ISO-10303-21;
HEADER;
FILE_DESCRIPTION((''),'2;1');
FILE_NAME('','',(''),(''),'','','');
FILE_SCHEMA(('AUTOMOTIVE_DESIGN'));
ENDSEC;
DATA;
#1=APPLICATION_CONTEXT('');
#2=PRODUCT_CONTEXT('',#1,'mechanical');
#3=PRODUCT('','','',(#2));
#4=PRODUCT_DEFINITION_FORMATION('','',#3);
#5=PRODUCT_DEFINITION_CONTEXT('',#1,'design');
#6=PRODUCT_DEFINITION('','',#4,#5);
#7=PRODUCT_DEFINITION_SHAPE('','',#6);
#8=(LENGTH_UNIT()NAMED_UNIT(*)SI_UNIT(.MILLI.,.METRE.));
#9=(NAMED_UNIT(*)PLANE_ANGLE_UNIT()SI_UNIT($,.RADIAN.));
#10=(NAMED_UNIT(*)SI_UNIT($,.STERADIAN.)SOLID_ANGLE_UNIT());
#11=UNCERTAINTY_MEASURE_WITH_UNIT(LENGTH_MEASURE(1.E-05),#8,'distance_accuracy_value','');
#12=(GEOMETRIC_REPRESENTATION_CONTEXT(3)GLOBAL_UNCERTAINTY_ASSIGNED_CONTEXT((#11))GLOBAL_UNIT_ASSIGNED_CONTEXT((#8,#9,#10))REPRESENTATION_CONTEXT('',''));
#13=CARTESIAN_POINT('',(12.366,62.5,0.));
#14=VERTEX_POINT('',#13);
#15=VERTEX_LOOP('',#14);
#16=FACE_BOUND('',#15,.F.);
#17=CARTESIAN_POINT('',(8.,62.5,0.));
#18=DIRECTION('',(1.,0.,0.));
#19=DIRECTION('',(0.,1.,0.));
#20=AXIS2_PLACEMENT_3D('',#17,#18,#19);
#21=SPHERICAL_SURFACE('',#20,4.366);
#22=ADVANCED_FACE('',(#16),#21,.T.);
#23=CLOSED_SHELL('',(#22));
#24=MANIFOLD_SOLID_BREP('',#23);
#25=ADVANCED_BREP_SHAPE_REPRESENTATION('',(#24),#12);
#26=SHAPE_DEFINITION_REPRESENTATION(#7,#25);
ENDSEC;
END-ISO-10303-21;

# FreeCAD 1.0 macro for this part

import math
import FreeCAD as App
import Part
import Sketcher
Q = App.Units.Quantity

doc = App.newDocument("Part")
body = doc.addObject("PartDesign::Body", "Body")

sketch1 = doc.addObject("Sketcher::SketchObject", "Sketch")
body.addObject(sketch1)
sketch1.AttachmentSupport = (doc.XY_Plane, [""])
sketch1.MapMode = "FlatFace"
sketch1.addGeometry([
    Part.ArcOfCircle(Part.Circle(App.Vector(8, 62.5, 0), App.Vector(0, 0, 1), 4.4), math.radians(0), math.radians(180)),
    Part.LineSegment(App.Vector(3.6, 62.5, 0), App.Vector(12.4, 62.5, 0)),
], False)
sketch1.addGeometry(Part.LineSegment(App.Vector(12.4, 62.5, 0), App.Vector(3.6, 62.5, 0)), True)
sketch1.addConstraint([
    Sketcher.Constraint("Coincident", 0, 1, 1, 2),
    Sketcher.Constraint("Coincident", 1, 1, 0, 2),
    Sketcher.Constraint("Horizontal", 1),
    Sketcher.Constraint("Horizontal", 2),
    Sketcher.Constraint("Coincident", 2, 1, 0, 1),
    Sketcher.Constraint("Equal", 1, 2),
    Sketcher.Constraint("DistanceX", -1, 1, 0, 3, Q("8 mm")),
    Sketcher.Constraint("Radius", 0, Q("4.366 mm")),
    Sketcher.Constraint("DistanceY", -1, 1, 0, 3, Q("62.5 mm")),
    Sketcher.Constraint("DistanceY", -1, 1, 0, 1, Q("62.5 mm")),
])
revolution = doc.addObject("PartDesign::Revolution", "Revolution")
body.addObject(revolution)
revolution.Profile = sketch1
revolution.ReferenceAxis = (sketch1, ["Axis0"])
revolution.Angle = 360

doc.recompute()
